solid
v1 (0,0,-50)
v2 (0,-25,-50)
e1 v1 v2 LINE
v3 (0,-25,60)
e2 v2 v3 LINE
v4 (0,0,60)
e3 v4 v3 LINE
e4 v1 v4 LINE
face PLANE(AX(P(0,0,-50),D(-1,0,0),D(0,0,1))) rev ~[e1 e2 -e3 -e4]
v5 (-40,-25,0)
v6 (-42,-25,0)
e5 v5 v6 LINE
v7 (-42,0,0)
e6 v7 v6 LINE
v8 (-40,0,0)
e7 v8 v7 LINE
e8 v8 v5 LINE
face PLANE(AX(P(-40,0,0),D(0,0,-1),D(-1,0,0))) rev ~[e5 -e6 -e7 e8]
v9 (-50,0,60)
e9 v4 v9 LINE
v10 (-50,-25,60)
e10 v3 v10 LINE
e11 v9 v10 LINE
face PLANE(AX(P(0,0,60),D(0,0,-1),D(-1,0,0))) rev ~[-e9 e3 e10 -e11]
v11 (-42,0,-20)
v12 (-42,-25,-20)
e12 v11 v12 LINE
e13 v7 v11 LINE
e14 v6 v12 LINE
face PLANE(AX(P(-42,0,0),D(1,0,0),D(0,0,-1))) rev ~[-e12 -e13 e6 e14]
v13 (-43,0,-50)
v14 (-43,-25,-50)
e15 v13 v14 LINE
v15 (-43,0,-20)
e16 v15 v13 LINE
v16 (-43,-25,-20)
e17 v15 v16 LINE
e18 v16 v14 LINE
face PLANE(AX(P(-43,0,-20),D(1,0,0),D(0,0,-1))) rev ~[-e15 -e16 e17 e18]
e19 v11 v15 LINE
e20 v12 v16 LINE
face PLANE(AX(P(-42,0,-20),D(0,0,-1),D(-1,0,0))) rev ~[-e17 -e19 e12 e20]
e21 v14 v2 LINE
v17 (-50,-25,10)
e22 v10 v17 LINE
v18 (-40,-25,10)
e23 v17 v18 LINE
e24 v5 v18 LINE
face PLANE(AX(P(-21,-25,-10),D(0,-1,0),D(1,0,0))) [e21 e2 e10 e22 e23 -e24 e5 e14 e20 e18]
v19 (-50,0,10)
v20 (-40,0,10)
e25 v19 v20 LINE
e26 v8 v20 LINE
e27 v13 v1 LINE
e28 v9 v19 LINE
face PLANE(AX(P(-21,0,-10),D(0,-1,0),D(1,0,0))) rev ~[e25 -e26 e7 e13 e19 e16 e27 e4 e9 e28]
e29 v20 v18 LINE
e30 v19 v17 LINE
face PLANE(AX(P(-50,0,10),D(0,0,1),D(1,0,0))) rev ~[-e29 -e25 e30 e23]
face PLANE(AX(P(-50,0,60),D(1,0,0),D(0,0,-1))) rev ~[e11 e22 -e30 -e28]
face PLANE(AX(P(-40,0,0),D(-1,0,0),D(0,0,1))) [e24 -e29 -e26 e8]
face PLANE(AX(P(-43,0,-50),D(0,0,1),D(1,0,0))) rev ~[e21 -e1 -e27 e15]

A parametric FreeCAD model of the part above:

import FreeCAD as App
import Part
import Sketcher

V = App.Vector
Q = App.Units.Quantity

doc = App.newDocument("Part")
body = doc.addObject("PartDesign::Body", "Body")

# Sketch on XZ plane
sketch1 = body.newObject("Sketcher::SketchObject", "Sketch")
sketch1.AttachmentSupport = (doc.getObject("XZ_Plane"), [""])
sketch1.MapMode = "FlatFace"
sketch1.addGeometry(Part.LineSegment(V(0, 60, 0), V(-50, 60, 0)), False)
sketch1.addGeometry(Part.LineSegment(V(-50, 60, 0), V(-50, 10, 0)), False)
sketch1.addGeometry(Part.LineSegment(V(-50, 10, 0), V(-40, 10, 0)), False)
sketch1.addGeometry(Part.LineSegment(V(-40, 10, 0), V(-40, 0, 0)), False)
sketch1.addGeometry(Part.LineSegment(V(-40, 0, 0), V(-42, 0, 0)), False)
sketch1.addGeometry(Part.LineSegment(V(-42, 0, 0), V(-42, -20, 0)), False)
sketch1.addGeometry(Part.LineSegment(V(-42, -20, 0), V(-43, -20, 0)), False)
sketch1.addGeometry(Part.LineSegment(V(-43, -20, 0), V(-43, -50, 0)), False)
sketch1.addGeometry(Part.LineSegment(V(-43, -50, 0), V(0, -50, 0)), False)
sketch1.addGeometry(Part.LineSegment(V(0, -50, 0), V(0, 60, 0)), False)
sketch1.addConstraint(Sketcher.Constraint("Coincident", 0, 2, 1, 1))
sketch1.addConstraint(Sketcher.Constraint("Coincident", 1, 2, 2, 1))
sketch1.addConstraint(Sketcher.Constraint("Coincident", 2, 2, 3, 1))
sketch1.addConstraint(Sketcher.Constraint("Coincident", 3, 2, 4, 1))
sketch1.addConstraint(Sketcher.Constraint("Coincident", 4, 2, 5, 1))
sketch1.addConstraint(Sketcher.Constraint("Coincident", 5, 2, 6, 1))
sketch1.addConstraint(Sketcher.Constraint("Coincident", 6, 2, 7, 1))
sketch1.addConstraint(Sketcher.Constraint("Coincident", 7, 2, 8, 1))
sketch1.addConstraint(Sketcher.Constraint("Coincident", 8, 2, 9, 1))
sketch1.addConstraint(Sketcher.Constraint("Coincident", 9, 2, 0, 1))
sketch1.addConstraint(Sketcher.Constraint("Horizontal", 0))
sketch1.addConstraint(Sketcher.Constraint("Vertical", 1))
sketch1.addConstraint(Sketcher.Constraint("Horizontal", 2))
sketch1.addConstraint(Sketcher.Constraint("Vertical", 3))
sketch1.addConstraint(Sketcher.Constraint("Horizontal", 4))
sketch1.addConstraint(Sketcher.Constraint("Vertical", 5))
sketch1.addConstraint(Sketcher.Constraint("Horizontal", 6))
sketch1.addConstraint(Sketcher.Constraint("Vertical", 7))
sketch1.addConstraint(Sketcher.Constraint("Horizontal", 8))
sketch1.addConstraint(Sketcher.Constraint("Vertical", 9))
sketch1.addConstraint(Sketcher.Constraint("PointOnObject", 3, 2, -1))
sketch1.addConstraint(Sketcher.Constraint("PointOnObject", 8, 2, -2))
sketch1.addConstraint(Sketcher.Constraint("Equal", 0, 1))
sketch1.addConstraint(Sketcher.Constraint("Equal", 2, 3))
sketch1.addConstraint(Sketcher.Constraint("DistanceX", 0, 2, 0, 1, Q("50 mm")))
sketch1.addConstraint(Sketcher.Constraint("DistanceX", 2, 1, 2, 2, Q("10 mm")))
sketch1.addConstraint(Sketcher.Constraint("DistanceX", 4, 2, 4, 1, Q("2 mm")))
sketch1.addConstraint(Sketcher.Constraint("DistanceX", 6, 2, 6, 1, Q("1 mm")))
sketch1.addConstraint(Sketcher.Constraint("DistanceY", 5, 2, 5, 1, Q("20 mm")))
sketch1.addConstraint(Sketcher.Constraint("DistanceY", 7, 2, 7, 1, Q("30 mm")))
pad1 = body.newObject("PartDesign::Pad", "Pad")
pad1.Profile = sketch1
pad1.Length = 25

doc.recompute()
